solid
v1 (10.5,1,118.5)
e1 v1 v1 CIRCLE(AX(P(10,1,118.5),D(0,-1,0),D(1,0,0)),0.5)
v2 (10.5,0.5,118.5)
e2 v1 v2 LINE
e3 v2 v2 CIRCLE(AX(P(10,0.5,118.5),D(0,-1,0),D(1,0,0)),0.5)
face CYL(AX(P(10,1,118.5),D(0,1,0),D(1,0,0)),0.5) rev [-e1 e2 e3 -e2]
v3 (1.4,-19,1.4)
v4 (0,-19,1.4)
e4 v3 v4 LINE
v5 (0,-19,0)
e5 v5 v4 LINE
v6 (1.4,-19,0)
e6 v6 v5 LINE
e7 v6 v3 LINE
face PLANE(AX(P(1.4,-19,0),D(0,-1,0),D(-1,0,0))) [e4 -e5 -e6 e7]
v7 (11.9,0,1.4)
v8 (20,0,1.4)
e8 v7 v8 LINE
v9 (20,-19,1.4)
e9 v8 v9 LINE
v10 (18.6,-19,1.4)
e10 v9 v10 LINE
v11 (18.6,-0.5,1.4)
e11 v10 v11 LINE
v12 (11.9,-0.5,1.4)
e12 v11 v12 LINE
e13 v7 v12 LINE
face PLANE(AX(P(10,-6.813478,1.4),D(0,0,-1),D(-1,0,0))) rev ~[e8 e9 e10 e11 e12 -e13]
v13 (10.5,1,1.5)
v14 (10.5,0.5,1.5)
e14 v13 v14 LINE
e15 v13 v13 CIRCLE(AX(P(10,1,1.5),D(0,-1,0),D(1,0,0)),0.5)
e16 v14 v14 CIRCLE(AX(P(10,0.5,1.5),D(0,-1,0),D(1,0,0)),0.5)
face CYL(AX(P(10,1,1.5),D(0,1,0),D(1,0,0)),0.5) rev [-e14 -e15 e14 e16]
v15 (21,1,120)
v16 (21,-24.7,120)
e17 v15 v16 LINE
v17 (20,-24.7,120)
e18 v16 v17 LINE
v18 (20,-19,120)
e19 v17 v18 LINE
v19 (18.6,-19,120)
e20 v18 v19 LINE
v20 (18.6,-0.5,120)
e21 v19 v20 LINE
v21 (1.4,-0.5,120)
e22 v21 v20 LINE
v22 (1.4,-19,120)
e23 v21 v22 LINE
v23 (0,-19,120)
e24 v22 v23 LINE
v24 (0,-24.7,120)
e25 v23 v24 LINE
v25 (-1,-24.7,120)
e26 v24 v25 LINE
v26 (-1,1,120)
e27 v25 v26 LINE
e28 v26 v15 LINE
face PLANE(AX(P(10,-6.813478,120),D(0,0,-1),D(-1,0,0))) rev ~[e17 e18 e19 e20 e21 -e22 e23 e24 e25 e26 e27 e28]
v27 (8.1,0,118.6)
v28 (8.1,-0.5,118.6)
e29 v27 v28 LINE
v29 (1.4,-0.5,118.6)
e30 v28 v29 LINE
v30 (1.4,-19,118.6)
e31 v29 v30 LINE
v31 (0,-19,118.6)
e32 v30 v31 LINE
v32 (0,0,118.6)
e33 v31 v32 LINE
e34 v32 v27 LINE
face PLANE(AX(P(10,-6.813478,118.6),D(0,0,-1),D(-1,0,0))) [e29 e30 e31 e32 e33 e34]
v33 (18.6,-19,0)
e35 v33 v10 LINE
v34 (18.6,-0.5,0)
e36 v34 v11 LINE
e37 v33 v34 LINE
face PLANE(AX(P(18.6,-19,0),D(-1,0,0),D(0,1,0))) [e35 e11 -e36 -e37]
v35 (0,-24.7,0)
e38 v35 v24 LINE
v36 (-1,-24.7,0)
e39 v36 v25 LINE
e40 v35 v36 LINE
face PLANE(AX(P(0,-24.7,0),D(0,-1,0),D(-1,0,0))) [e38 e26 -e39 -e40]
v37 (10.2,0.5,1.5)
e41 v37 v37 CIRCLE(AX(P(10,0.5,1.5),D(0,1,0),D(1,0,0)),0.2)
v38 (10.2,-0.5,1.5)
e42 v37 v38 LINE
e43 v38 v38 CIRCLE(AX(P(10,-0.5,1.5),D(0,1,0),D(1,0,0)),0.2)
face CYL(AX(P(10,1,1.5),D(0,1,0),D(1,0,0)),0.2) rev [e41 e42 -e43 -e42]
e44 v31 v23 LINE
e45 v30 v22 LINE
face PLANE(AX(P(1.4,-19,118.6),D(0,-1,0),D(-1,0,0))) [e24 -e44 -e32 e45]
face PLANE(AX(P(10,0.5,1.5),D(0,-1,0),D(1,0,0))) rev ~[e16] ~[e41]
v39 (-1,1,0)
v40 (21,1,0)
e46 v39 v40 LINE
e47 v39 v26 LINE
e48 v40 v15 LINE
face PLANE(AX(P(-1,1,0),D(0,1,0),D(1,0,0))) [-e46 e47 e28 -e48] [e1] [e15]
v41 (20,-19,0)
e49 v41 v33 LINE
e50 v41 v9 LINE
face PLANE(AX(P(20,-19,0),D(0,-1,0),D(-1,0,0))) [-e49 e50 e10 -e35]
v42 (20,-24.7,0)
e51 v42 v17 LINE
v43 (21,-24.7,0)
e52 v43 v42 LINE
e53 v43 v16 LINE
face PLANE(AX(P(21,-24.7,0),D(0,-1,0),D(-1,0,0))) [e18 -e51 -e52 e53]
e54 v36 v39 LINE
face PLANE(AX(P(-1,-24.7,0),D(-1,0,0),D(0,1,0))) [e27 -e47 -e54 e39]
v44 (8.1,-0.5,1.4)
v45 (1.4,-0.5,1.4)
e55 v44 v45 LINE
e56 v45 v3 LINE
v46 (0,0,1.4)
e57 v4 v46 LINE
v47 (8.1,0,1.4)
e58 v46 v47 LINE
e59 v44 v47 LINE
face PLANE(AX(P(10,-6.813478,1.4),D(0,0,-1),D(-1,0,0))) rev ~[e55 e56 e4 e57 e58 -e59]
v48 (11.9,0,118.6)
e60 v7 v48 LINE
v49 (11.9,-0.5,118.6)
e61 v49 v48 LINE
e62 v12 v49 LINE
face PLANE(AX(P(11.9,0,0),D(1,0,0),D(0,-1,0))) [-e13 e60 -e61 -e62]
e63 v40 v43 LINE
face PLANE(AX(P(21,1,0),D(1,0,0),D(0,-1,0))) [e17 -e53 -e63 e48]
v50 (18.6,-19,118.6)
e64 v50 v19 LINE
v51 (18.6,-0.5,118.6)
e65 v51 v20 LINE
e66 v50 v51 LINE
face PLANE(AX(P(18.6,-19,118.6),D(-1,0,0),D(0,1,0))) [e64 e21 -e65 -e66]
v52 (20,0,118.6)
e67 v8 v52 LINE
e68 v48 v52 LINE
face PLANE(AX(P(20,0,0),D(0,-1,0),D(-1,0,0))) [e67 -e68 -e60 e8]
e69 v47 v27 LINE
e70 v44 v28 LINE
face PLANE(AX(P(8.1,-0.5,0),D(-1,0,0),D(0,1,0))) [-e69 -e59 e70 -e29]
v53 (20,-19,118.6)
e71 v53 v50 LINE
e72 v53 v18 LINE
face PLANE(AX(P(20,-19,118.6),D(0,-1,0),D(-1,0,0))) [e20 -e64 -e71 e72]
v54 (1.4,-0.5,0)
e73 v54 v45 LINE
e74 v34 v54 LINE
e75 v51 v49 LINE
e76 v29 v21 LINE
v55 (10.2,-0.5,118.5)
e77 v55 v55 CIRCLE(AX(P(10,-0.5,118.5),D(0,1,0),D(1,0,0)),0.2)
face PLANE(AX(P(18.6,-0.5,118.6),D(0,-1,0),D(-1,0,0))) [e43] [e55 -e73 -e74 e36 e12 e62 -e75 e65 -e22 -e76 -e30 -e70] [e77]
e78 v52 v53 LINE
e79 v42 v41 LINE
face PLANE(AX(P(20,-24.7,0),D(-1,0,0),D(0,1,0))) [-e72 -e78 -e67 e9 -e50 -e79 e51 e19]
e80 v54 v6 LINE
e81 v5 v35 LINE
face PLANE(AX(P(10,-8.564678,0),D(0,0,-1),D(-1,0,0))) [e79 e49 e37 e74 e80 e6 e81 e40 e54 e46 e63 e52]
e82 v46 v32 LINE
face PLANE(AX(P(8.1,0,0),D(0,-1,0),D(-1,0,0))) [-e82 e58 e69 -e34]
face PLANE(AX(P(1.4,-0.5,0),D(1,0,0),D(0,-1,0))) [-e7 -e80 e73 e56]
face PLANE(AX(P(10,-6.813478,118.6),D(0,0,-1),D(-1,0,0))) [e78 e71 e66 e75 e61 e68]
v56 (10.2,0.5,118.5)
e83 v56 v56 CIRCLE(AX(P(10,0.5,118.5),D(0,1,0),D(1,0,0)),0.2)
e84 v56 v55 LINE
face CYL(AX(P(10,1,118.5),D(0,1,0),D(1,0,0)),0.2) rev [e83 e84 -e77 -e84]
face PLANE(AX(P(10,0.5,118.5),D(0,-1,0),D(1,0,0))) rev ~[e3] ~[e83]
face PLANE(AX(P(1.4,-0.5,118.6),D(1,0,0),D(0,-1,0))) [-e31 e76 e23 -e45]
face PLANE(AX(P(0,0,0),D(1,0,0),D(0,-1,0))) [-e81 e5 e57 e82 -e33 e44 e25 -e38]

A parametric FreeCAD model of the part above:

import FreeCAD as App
import Part
import Sketcher

V = App.Vector

doc = App.newDocument("Part")
body = doc.addObject("PartDesign::Body", "Body")

# Sketch on XY plane
sketch1 = body.newObject("Sketcher::SketchObject", "Sketch")
sketch1.AttachmentSupport = (doc.getObject("XY_Plane"), [""])
sketch1.MapMode = "FlatFace"
sketch1.addGeometry(Part.Circle(V(0, 3, 0), V(0, 0, 1), 0.5), False)
sketch1.addConstraint(Sketcher.Constraint("PointOnObject", 0, 3, -2))
sketch1.addConstraint(Sketcher.Constraint("Diameter", 0, 1.0))
sketch1.addConstraint(Sketcher.Constraint("DistanceY", -1, 1, 0, 3, 3.0))
pad1 = body.newObject("PartDesign::Pad", "Pad")
pad1.Profile = sketch1
pad1.Length = 0.5
body2 = doc.addObject("PartDesign::Body", "Body001")

# Sketch on XY plane
sketch2 = body2.newObject("Sketcher::SketchObject", "Sketch001")
sketch2.AttachmentSupport = (doc.getObject("XY_Plane001"), [""])
sketch2.MapMode = "FlatFace"
sketch2.addGeometry(Part.Circle(V(0, 3, 0), V(0, 0, 1), 0.2), False)
sketch2.addConstraint(Sketcher.Constraint("PointOnObject", 0, 3, -2))
sketch2.addConstraint(Sketcher.Constraint("Diameter", 0, 0.4))
sketch2.addConstraint(Sketcher.Constraint("DistanceY", -1, 1, 0, 3, 3.0))
pad2 = body2.newObject("PartDesign::Pad", "Pad001")
pad2.Profile = sketch2
pad2.Length = 10
doc.recompute()

boolean = body2.newObject("PartDesign::Boolean", "Boolean")
boolean.Type = "Fuse"
boolean.addObjects([body])
body3 = doc.addObject("PartDesign::Body", "Body002")
doc.recompute()

body2.Placement = App.Placement(V(0, 0, 0), App.Rotation(V(1, 0, 0), 90))
boolean2 = body3.newObject("PartDesign::Boolean", "Boolean001")
boolean2.Type = "Fuse"
boolean2.addObjects([body2])
body4 = doc.addObject("PartDesign::Body", "Body003")
doc.recompute()

body3.Placement = App.Placement(V(10, 1, 115.5), App.Rotation(V(0, 0, 1), 0))
boolean3 = body4.newObject("PartDesign::Boolean", "Boolean002")
boolean3.Type = "Fuse"
boolean3.addObjects([body3])
body5 = doc.addObject("PartDesign::Body", "Body004")

# Sketch on XY plane
sketch3 = body5.newObject("Sketcher::SketchObject", "Sketch002")
sketch3.AttachmentSupport = (doc.getObject("XY_Plane004"), [""])
sketch3.MapMode = "FlatFace"
sketch3.addGeometry(Part.Circle(V(0, 3, 0), V(0, 0, 1), 0.5), False)
sketch3.addConstraint(Sketcher.Constraint("PointOnObject", 0, 3, -2))
sketch3.addConstraint(Sketcher.Constraint("Diameter", 0, 1.0))
sketch3.addConstraint(Sketcher.Constraint("DistanceY", -1, 1, 0, 3, 3.0))
pad3 = body5.newObject("PartDesign::Pad", "Pad002")
pad3.Profile = sketch3
pad3.Length = 0.5
body6 = doc.addObject("PartDesign::Body", "Body005")

# Sketch on XY plane
sketch4 = body6.newObject("Sketcher::SketchObject", "Sketch003")
sketch4.AttachmentSupport = (doc.getObject("XY_Plane005"), [""])
sketch4.MapMode = "FlatFace"
sketch4.addGeometry(Part.Circle(V(0, 3, 0), V(0, 0, 1), 0.2), False)
sketch4.addConstraint(Sketcher.Constraint("PointOnObject", 0, 3, -2))
sketch4.addConstraint(Sketcher.Constraint("Diameter", 0, 0.4))
sketch4.addConstraint(Sketcher.Constraint("DistanceY", -1, 1, 0, 3, 3.0))
pad4 = body6.newObject("PartDesign::Pad", "Pad003")
pad4.Profile = sketch4
pad4.Length = 10
doc.recompute()

boolean4 = body6.newObject("PartDesign::Boolean", "Boolean003")
boolean4.Type = "Fuse"
boolean4.addObjects([body5])
body7 = doc.addObject("PartDesign::Body", "Body006")
doc.recompute()

body6.Placement = App.Placement(V(0, 0, 0), App.Rotation(V(1, 0, 0), 90))
boolean5 = body7.newObject("PartDesign::Boolean", "Boolean004")
boolean5.Type = "Fuse"
boolean5.addObjects([body6])
body8 = doc.addObject("PartDesign::Body", "Body007")
body8.AllowCompound = True
doc.recompute()

body7.Placement = App.Placement(V(10, 1, -1.5), App.Rotation(V(0, 0, 1), 0))
boolean6 = body8.newObject("PartDesign::Boolean", "Boolean005")
boolean6.Type = "Fuse"
boolean6.addObjects([body7])
doc.recompute()

boolean7 = body8.newObject("PartDesign::Boolean", "Boolean006")
boolean7.Type = "Fuse"
boolean7.addObjects([body4])
body9 = doc.addObject("PartDesign::Body", "Body008")

# Sketch on XY plane
sketch5 = body9.newObject("Sketcher::SketchObject", "Sketch004")
sketch5.AttachmentSupport = (doc.getObject("XY_Plane008"), [""])
sketch5.MapMode = "FlatFace"
sketch5.addGeometry(Part.LineSegment(V(21, 1, 0), V(-1, 1, 0)), False)
sketch5.addGeometry(Part.LineSegment(V(-1, 1, 0), V(-1, -24.7, 0)), False)
sketch5.addGeometry(Part.LineSegment(V(-1, -24.7, 0), V(0, -24.7, 0)), False)
sketch5.addGeometry(Part.LineSegment(V(0, -24.7, 0), V(0, 0, 0)), False)
sketch5.addGeometry(Part.LineSegment(V(0, 0, 0), V(8.1, 0, 0)), False)
sketch5.addGeometry(Part.LineSegment(V(8.1, 0, 0), V(8.1, -0.5, 0)), False)
sketch5.addGeometry(Part.LineSegment(V(8.1, -0.5, 0), V(11.9, -0.5, 0)), False)
sketch5.addGeometry(Part.LineSegment(V(11.9, -0.5, 0), V(11.9, 0, 0)), False)
sketch5.addGeometry(Part.LineSegment(V(11.9, 0, 0), V(20, 0, 0)), False)
sketch5.addGeometry(Part.LineSegment(V(20, 0, 0), V(20, -24.7, 0)), False)
sketch5.addGeometry(Part.LineSegment(V(20, -24.7, 0), V(21, -24.7, 0)), False)
sketch5.addGeometry(Part.LineSegment(V(21, -24.7, 0), V(21, 1, 0)), False)
sketch5.addConstraint(Sketcher.Constraint("Coincident", 0, 2, 1, 1))
sketch5.addConstraint(Sketcher.Constraint("Coincident", 1, 2, 2, 1))
sketch5.addConstraint(Sketcher.Constraint("Coincident", 2, 2, 3, 1))
sketch5.addConstraint(Sketcher.Constraint("Coincident", 3, 2, 4, 1))
sketch5.addConstraint(Sketcher.Constraint("Coincident", 4, 2, 5, 1))
sketch5.addConstraint(Sketcher.Constraint("Coincident", 5, 2, 6, 1))
sketch5.addConstraint(Sketcher.Constraint("Coincident", 6, 2, 7, 1))
sketch5.addConstraint(Sketcher.Constraint("Coincident", 7, 2, 8, 1))
sketch5.addConstraint(Sketcher.Constraint("Coincident", 8, 2, 9, 1))
sketch5.addConstraint(Sketcher.Constraint("Coincident", 9, 2, 10, 1))
sketch5.addConstraint(Sketcher.Constraint("Coincident", 10, 2, 11, 1))
sketch5.addConstraint(Sketcher.Constraint("Coincident", 11, 2, 0, 1))
sketch5.addConstraint(Sketcher.Constraint("Horizontal", 0))
sketch5.addConstraint(Sketcher.Constraint("Vertical", 1))
sketch5.addConstraint(Sketcher.Constraint("Horizontal", 2))
sketch5.addConstraint(Sketcher.Constraint("Vertical", 3))
sketch5.addConstraint(Sketcher.Constraint("Horizontal", 4))
sketch5.addConstraint(Sketcher.Constraint("Vertical", 5))
sketch5.addConstraint(Sketcher.Constraint("Horizontal", 6))
sketch5.addConstraint(Sketcher.Constraint("Vertical", 7))
sketch5.addConstraint(Sketcher.Constraint("Horizontal", 8))
sketch5.addConstraint(Sketcher.Constraint("Vertical", 9))
sketch5.addConstraint(Sketcher.Constraint("Horizontal", 10))
sketch5.addConstraint(Sketcher.Constraint("Vertical", 11))
sketch5.addConstraint(Sketcher.Constraint("Coincident", 3, 2, -1, 1))
sketch5.addConstraint(Sketcher.Constraint("PointOnObject", 7, 2, -1))
sketch5.addConstraint(Sketcher.Constraint("Horizontal", 2, 2, 9, 2))
sketch5.addConstraint(Sketcher.Constraint("Equal", 4, 8))
sketch5.addConstraint(Sketcher.Constraint("Equal", 2, 10))
sketch5.addConstraint(Sketcher.Constraint("DistanceX", 0, 2, 0, 1, 22.0))
sketch5.addConstraint(Sketcher.Constraint("DistanceX", 2, 1, 2, 2, 1.0))
sketch5.addConstraint(Sketcher.Constraint("DistanceX", 4, 1, 4, 2, 8.1))
sketch5.addConstraint(Sketcher.Constraint("DistanceY", 1, 2, 1, 1, 25.7))
sketch5.addConstraint(Sketcher.Constraint("DistanceY", 3, 1, 3, 2, 24.7))
sketch5.addConstraint(Sketcher.Constraint("DistanceY", 5, 2, 5, 1, 0.5))
pad5 = body9.newObject("PartDesign::Pad", "Pad004")
pad5.Profile = sketch5
pad5.Length = 120
body10 = doc.addObject("PartDesign::Body", "Body009")

# Sketch on XY plane
sketch6 = body10.newObject("Sketcher::SketchObject", "Sketch005")
sketch6.AttachmentSupport = (doc.getObject("XY_Plane009"), [""])
sketch6.MapMode = "FlatFace"
sketch6.AttachmentOffset = App.Placement(V(0, 0, 118.6), App.Rotation())
sketch6.addGeometry(Part.LineSegment(V(20, 0, 0), V(0, 0, 0)), False)
sketch6.addGeometry(Part.LineSegment(V(0, 0, 0), V(0, -19, 0)), False)
sketch6.addGeometry(Part.LineSegment(V(0, -19, 0), V(1.4, -19, 0)), False)
sketch6.addGeometry(Part.LineSegment(V(1.4, -19, 0), V(1.4, -0.5, 0)), False)
sketch6.addGeometry(Part.LineSegment(V(1.4, -0.5, 0), V(18.6, -0.5, 0)), False)
sketch6.addGeometry(Part.LineSegment(V(18.6, -0.5, 0), V(18.6, -19, 0)), False)
sketch6.addGeometry(Part.LineSegment(V(18.6, -19, 0), V(20, -19, 0)), False)
sketch6.addGeometry(Part.LineSegment(V(20, -19, 0), V(20, 0, 0)), False)
sketch6.addConstraint(Sketcher.Constraint("Coincident", 0, 2, 1, 1))
sketch6.addConstraint(Sketcher.Constraint("Coincident", 1, 2, 2, 1))
sketch6.addConstraint(Sketcher.Constraint("Coincident", 2, 2, 3, 1))
sketch6.addConstraint(Sketcher.Constraint("Coincident", 3, 2, 4, 1))
sketch6.addConstraint(Sketcher.Constraint("Coincident", 4, 2, 5, 1))
sketch6.addConstraint(Sketcher.Constraint("Coincident", 5, 2, 6, 1))
sketch6.addConstraint(Sketcher.Constraint("Coincident", 6, 2, 7, 1))
sketch6.addConstraint(Sketcher.Constraint("Coincident", 7, 2, 0, 1))
sketch6.addConstraint(Sketcher.Constraint("Horizontal", 0))
sketch6.addConstraint(Sketcher.Constraint("Vertical", 1))
sketch6.addConstraint(Sketcher.Constraint("Horizontal", 2))
sketch6.addConstraint(Sketcher.Constraint("Vertical", 3))
sketch6.addConstraint(Sketcher.Constraint("Horizontal", 4))
sketch6.addConstraint(Sketcher.Constraint("Vertical", 5))
sketch6.addConstraint(Sketcher.Constraint("Horizontal", 6))
sketch6.addConstraint(Sketcher.Constraint("Vertical", 7))
sketch6.addConstraint(Sketcher.Constraint("Coincident", 0, 2, -1, 1))
sketch6.addConstraint(Sketcher.Constraint("Horizontal", 2, 2, 5, 2))
sketch6.addConstraint(Sketcher.Constraint("Equal", 2, 6))
sketch6.addConstraint(Sketcher.Constraint("DistanceX", 0, 2, 0, 1, 20.0))
sketch6.addConstraint(Sketcher.Constraint("DistanceY", 1, 2, 1, 1, 19.0))
sketch6.addConstraint(Sketcher.Constraint("DistanceX", 2, 1, 2, 2, 1.4))
sketch6.addConstraint(Sketcher.Constraint("DistanceY", 3, 1, 3, 2, 18.5))
pad6 = body10.newObject("PartDesign::Pad", "Pad005")
pad6.Profile = sketch6
pad6.Length = 1.4
body11 = doc.addObject("PartDesign::Body", "Body010")

# Sketch on XY plane
sketch7 = body11.newObject("Sketcher::SketchObject", "Sketch006")
sketch7.AttachmentSupport = (doc.getObject("XY_Plane010"), [""])
sketch7.MapMode = "FlatFace"
sketch7.addGeometry(Part.LineSegment(V(20, 0, 0), V(0, 0, 0)), False)
sketch7.addGeometry(Part.LineSegment(V(0, 0, 0), V(0, -19, 0)), False)
sketch7.addGeometry(Part.LineSegment(V(0, -19, 0), V(1.4, -19, 0)), False)
sketch7.addGeometry(Part.LineSegment(V(1.4, -19, 0), V(1.4, -0.5, 0)), False)
sketch7.addGeometry(Part.LineSegment(V(1.4, -0.5, 0), V(18.6, -0.5, 0)), False)
sketch7.addGeometry(Part.LineSegment(V(18.6, -0.5, 0), V(18.6, -19, 0)), False)
sketch7.addGeometry(Part.LineSegment(V(18.6, -19, 0), V(20, -19, 0)), False)
sketch7.addGeometry(Part.LineSegment(V(20, -19, 0), V(20, 0, 0)), False)
sketch7.addConstraint(Sketcher.Constraint("Coincident", 0, 2, 1, 1))
sketch7.addConstraint(Sketcher.Constraint("Coincident", 1, 2, 2, 1))
sketch7.addConstraint(Sketcher.Constraint("Coincident", 2, 2, 3, 1))
sketch7.addConstraint(Sketcher.Constraint("Coincident", 3, 2, 4, 1))
sketch7.addConstraint(Sketcher.Constraint("Coincident", 4, 2, 5, 1))
sketch7.addConstraint(Sketcher.Constraint("Coincident", 5, 2, 6, 1))
sketch7.addConstraint(Sketcher.Constraint("Coincident", 6, 2, 7, 1))
sketch7.addConstraint(Sketcher.Constraint("Coincident", 7, 2, 0, 1))
sketch7.addConstraint(Sketcher.Constraint("Horizontal", 0))
sketch7.addConstraint(Sketcher.Constraint("Vertical", 1))
sketch7.addConstraint(Sketcher.Constraint("Horizontal", 2))
sketch7.addConstraint(Sketcher.Constraint("Vertical", 3))
sketch7.addConstraint(Sketcher.Constraint("Horizontal", 4))
sketch7.addConstraint(Sketcher.Constraint("Vertical", 5))
sketch7.addConstraint(Sketcher.Constraint("Horizontal", 6))
sketch7.addConstraint(Sketcher.Constraint("Vertical", 7))
sketch7.addConstraint(Sketcher.Constraint("Coincident", 0, 2, -1, 1))
sketch7.addConstraint(Sketcher.Constraint("Horizontal", 2, 2, 5, 2))
sketch7.addConstraint(Sketcher.Constraint("Equal", 2, 6))
sketch7.addConstraint(Sketcher.Constraint("DistanceX", 0, 2, 0, 1, 20.0))
sketch7.addConstraint(Sketcher.Constraint("DistanceY", 1, 2, 1, 1, 19.0))
sketch7.addConstraint(Sketcher.Constraint("DistanceX", 2, 1, 2, 2, 1.4))
sketch7.addConstraint(Sketcher.Constraint("DistanceY", 3, 1, 3, 2, 18.5))
pad7 = body11.newObject("PartDesign::Pad", "Pad006")
pad7.Profile = sketch7
pad7.Length = 1.4
doc.recompute()

boolean8 = body11.newObject("PartDesign::Boolean", "Boolean007")
boolean8.Type = "Fuse"
boolean8.addObjects([body9])
doc.recompute()

boolean9 = body11.newObject("PartDesign::Boolean", "Boolean008")
boolean9.Type = "Fuse"
boolean9.addObjects([body10])
doc.recompute()

boolean10 = body11.newObject("PartDesign::Boolean", "Boolean009")
boolean10.Type = "Cut"
boolean10.addObjects([body8])

doc.recompute()
